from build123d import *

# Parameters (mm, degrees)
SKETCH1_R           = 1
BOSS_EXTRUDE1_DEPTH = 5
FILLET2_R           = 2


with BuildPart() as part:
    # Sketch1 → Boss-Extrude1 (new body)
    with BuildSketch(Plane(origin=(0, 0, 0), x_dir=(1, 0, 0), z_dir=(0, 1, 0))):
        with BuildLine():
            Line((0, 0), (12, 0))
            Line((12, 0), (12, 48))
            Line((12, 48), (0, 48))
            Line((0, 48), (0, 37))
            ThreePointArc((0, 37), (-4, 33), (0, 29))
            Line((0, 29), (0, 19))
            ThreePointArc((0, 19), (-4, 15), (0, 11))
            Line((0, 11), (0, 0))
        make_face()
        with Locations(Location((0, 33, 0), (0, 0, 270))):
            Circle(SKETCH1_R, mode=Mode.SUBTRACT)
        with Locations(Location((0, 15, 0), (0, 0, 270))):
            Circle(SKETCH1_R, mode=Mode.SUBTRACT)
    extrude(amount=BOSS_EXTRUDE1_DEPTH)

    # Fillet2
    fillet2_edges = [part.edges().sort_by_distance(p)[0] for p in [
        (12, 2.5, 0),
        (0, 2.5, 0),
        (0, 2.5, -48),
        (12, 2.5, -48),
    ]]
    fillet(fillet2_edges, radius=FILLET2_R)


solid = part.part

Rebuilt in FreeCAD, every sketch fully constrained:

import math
import FreeCAD as App
import Part
import Sketcher
from FreeCAD import Vector


def edges_at(feature, points):
    """Names of the edges that pass closest to the given points."""
    edges = feature.Shape.Edges
    near = lambda p: min(range(len(edges)), key=lambda i: edges[i].distToShape(Part.Vertex(*p))[0])
    return sorted({f"Edge{near(p) + 1}" for p in points})

doc = App.newDocument("Part")
params = doc.addObject("Spreadsheet::Sheet", "Params")
for row, (alias, value) in enumerate([
    ("sketch1_diameter", "2 mm"),
    ("sketch1_radius", "4 mm"),
    ("sketch1_width", "12 mm"),
    ("sketch1_height", "48 mm"),
    ("sketch1_height2", "11 mm"),
    ("pad1_length", "5 mm"),
    ("fillet_radius", "2 mm"),
], start=1):
    params.set(f"A{row}", alias)
    params.set(f"B{row}", "=" + value)
    params.setAlias(f"B{row}", alias)

body = doc.addObject("PartDesign::Body", "Body")

# Sketch on XZ plane
sketch1 = body.newObject("Sketcher::SketchObject", "Sketch")
sketch1.AttachmentSupport = (doc.getObject("XZ_Plane"), [""])
sketch1.MapMode = "FlatFace"
sketch1.addGeometry(Part.LineSegment(Vector(0, 0, 0), Vector(12, 0, 0)), False)
sketch1.addGeometry(Part.LineSegment(Vector(12, 0, 0), Vector(12, -48, 0)), False)
sketch1.addGeometry(Part.LineSegment(Vector(12, -48, 0), Vector(0, -48, 0)), False)
sketch1.addGeometry(Part.LineSegment(Vector(0, -48, 0), Vector(0, -37, 0)), False)
sketch1.addGeometry(Part.ArcOfCircle(Part.Circle(Vector(0, -33, 0), Vector(0, 0, 1), 4), math.radians(90), math.radians(270)), False)
sketch1.addGeometry(Part.LineSegment(Vector(0, -29, 0), Vector(0, -19, 0)), False)
sketch1.addGeometry(Part.ArcOfCircle(Part.Circle(Vector(0, -15, 0), Vector(0, 0, 1), 4), math.radians(90), math.radians(270)), False)
sketch1.addGeometry(Part.LineSegment(Vector(0, -11, 0), Vector(0, 0, 0)), False)
sketch1.addGeometry(Part.Circle(Vector(0, -15, 0), Vector(0, 0, 1), 1), False)
sketch1.addGeometry(Part.Circle(Vector(0, -33, 0), Vector(0, 0, 1), 1), False)
sketch1.addConstraint(Sketcher.Constraint("Coincident", 0, 2, 1, 1))
sketch1.addConstraint(Sketcher.Constraint("Coincident", 1, 2, 2, 1))
sketch1.addConstraint(Sketcher.Constraint("Coincident", 2, 2, 3, 1))
sketch1.addConstraint(Sketcher.Constraint("Coincident", 3, 2, 4, 2))
sketch1.addConstraint(Sketcher.Constraint("Coincident", 4, 1, 5, 1))
sketch1.addConstraint(Sketcher.Constraint("Coincident", 5, 2, 6, 2))
sketch1.addConstraint(Sketcher.Constraint("Coincident", 6, 1, 7, 1))
sketch1.addConstraint(Sketcher.Constraint("Coincident", 7, 2, 0, 1))
sketch1.addConstraint(Sketcher.Constraint("Horizontal", 0))
sketch1.addConstraint(Sketcher.Constraint("Vertical", 1))
sketch1.addConstraint(Sketcher.Constraint("Horizontal", 2))
sketch1.addConstraint(Sketcher.Constraint("Vertical", 3))
sketch1.addConstraint(Sketcher.Constraint("Vertical", 5))
sketch1.addConstraint(Sketcher.Constraint("Vertical", 7))
sketch1.addConstraint(Sketcher.Constraint("Coincident", 7, 2, -1, 1))
sketch1.addConstraint(Sketcher.Constraint("Coincident", 8, 3, 6, 3))
sketch1.addConstraint(Sketcher.Constraint("Coincident", 9, 3, 4, 3))
sketch1.addConstraint(Sketcher.Constraint("Equal", 4, 6))
sketch1.addConstraint(Sketcher.Constraint("Equal", 8, 9))
sketch1.addConstraint(Sketcher.Constraint("PointOnObject", 4, 3, -2))
sketch1.addConstraint(Sketcher.Constraint("PointOnObject", 6, 3, -2))
sketch1.addConstraint(Sketcher.Constraint("PointOnObject", 2, 2, -2))
sketch1.addConstraint(Sketcher.Constraint("PointOnObject", 4, 1, -2))
sketch1.addConstraint(Sketcher.Constraint("Equal", 3, 7))
sketch1.addConstraint(Sketcher.Constraint("Diameter", 8, 2.0))
sketch1.addConstraint(Sketcher.Constraint("Radius", 4, 4.0))
sketch1.addConstraint(Sketcher.Constraint("DistanceX", 0, 1, 0, 2, 12.0))
sketch1.addConstraint(Sketcher.Constraint("DistanceY", 1, 2, 1, 1, 48.0))
sketch1.addConstraint(Sketcher.Constraint("DistanceY", 3, 1, 3, 2, 11.0))
sketch1.setExpression("Constraints[24]", "Params.sketch1_diameter")
sketch1.setExpression("Constraints[25]", "Params.sketch1_radius")
sketch1.setExpression("Constraints[26]", "Params.sketch1_width")
sketch1.setExpression("Constraints[27]", "Params.sketch1_height")
sketch1.setExpression("Constraints[28]", "Params.sketch1_height2")
pad1 = body.newObject("PartDesign::Pad", "Pad")
pad1.Profile = sketch1
pad1.setExpression("Length", "Params.pad1_length")
pad1.Reversed = True
doc.recompute()

fillet = body.newObject("PartDesign::Fillet", "Fillet")
fillet.Base = (pad1, edges_at(pad1, [
    (12, 2.5, 0),
    (0, 2.5, 0),
    (0, 2.5, -48),
    (12, 2.5, -48),
]))
fillet.setExpression("Radius", "Params.fillet_radius")

doc.recompute()
